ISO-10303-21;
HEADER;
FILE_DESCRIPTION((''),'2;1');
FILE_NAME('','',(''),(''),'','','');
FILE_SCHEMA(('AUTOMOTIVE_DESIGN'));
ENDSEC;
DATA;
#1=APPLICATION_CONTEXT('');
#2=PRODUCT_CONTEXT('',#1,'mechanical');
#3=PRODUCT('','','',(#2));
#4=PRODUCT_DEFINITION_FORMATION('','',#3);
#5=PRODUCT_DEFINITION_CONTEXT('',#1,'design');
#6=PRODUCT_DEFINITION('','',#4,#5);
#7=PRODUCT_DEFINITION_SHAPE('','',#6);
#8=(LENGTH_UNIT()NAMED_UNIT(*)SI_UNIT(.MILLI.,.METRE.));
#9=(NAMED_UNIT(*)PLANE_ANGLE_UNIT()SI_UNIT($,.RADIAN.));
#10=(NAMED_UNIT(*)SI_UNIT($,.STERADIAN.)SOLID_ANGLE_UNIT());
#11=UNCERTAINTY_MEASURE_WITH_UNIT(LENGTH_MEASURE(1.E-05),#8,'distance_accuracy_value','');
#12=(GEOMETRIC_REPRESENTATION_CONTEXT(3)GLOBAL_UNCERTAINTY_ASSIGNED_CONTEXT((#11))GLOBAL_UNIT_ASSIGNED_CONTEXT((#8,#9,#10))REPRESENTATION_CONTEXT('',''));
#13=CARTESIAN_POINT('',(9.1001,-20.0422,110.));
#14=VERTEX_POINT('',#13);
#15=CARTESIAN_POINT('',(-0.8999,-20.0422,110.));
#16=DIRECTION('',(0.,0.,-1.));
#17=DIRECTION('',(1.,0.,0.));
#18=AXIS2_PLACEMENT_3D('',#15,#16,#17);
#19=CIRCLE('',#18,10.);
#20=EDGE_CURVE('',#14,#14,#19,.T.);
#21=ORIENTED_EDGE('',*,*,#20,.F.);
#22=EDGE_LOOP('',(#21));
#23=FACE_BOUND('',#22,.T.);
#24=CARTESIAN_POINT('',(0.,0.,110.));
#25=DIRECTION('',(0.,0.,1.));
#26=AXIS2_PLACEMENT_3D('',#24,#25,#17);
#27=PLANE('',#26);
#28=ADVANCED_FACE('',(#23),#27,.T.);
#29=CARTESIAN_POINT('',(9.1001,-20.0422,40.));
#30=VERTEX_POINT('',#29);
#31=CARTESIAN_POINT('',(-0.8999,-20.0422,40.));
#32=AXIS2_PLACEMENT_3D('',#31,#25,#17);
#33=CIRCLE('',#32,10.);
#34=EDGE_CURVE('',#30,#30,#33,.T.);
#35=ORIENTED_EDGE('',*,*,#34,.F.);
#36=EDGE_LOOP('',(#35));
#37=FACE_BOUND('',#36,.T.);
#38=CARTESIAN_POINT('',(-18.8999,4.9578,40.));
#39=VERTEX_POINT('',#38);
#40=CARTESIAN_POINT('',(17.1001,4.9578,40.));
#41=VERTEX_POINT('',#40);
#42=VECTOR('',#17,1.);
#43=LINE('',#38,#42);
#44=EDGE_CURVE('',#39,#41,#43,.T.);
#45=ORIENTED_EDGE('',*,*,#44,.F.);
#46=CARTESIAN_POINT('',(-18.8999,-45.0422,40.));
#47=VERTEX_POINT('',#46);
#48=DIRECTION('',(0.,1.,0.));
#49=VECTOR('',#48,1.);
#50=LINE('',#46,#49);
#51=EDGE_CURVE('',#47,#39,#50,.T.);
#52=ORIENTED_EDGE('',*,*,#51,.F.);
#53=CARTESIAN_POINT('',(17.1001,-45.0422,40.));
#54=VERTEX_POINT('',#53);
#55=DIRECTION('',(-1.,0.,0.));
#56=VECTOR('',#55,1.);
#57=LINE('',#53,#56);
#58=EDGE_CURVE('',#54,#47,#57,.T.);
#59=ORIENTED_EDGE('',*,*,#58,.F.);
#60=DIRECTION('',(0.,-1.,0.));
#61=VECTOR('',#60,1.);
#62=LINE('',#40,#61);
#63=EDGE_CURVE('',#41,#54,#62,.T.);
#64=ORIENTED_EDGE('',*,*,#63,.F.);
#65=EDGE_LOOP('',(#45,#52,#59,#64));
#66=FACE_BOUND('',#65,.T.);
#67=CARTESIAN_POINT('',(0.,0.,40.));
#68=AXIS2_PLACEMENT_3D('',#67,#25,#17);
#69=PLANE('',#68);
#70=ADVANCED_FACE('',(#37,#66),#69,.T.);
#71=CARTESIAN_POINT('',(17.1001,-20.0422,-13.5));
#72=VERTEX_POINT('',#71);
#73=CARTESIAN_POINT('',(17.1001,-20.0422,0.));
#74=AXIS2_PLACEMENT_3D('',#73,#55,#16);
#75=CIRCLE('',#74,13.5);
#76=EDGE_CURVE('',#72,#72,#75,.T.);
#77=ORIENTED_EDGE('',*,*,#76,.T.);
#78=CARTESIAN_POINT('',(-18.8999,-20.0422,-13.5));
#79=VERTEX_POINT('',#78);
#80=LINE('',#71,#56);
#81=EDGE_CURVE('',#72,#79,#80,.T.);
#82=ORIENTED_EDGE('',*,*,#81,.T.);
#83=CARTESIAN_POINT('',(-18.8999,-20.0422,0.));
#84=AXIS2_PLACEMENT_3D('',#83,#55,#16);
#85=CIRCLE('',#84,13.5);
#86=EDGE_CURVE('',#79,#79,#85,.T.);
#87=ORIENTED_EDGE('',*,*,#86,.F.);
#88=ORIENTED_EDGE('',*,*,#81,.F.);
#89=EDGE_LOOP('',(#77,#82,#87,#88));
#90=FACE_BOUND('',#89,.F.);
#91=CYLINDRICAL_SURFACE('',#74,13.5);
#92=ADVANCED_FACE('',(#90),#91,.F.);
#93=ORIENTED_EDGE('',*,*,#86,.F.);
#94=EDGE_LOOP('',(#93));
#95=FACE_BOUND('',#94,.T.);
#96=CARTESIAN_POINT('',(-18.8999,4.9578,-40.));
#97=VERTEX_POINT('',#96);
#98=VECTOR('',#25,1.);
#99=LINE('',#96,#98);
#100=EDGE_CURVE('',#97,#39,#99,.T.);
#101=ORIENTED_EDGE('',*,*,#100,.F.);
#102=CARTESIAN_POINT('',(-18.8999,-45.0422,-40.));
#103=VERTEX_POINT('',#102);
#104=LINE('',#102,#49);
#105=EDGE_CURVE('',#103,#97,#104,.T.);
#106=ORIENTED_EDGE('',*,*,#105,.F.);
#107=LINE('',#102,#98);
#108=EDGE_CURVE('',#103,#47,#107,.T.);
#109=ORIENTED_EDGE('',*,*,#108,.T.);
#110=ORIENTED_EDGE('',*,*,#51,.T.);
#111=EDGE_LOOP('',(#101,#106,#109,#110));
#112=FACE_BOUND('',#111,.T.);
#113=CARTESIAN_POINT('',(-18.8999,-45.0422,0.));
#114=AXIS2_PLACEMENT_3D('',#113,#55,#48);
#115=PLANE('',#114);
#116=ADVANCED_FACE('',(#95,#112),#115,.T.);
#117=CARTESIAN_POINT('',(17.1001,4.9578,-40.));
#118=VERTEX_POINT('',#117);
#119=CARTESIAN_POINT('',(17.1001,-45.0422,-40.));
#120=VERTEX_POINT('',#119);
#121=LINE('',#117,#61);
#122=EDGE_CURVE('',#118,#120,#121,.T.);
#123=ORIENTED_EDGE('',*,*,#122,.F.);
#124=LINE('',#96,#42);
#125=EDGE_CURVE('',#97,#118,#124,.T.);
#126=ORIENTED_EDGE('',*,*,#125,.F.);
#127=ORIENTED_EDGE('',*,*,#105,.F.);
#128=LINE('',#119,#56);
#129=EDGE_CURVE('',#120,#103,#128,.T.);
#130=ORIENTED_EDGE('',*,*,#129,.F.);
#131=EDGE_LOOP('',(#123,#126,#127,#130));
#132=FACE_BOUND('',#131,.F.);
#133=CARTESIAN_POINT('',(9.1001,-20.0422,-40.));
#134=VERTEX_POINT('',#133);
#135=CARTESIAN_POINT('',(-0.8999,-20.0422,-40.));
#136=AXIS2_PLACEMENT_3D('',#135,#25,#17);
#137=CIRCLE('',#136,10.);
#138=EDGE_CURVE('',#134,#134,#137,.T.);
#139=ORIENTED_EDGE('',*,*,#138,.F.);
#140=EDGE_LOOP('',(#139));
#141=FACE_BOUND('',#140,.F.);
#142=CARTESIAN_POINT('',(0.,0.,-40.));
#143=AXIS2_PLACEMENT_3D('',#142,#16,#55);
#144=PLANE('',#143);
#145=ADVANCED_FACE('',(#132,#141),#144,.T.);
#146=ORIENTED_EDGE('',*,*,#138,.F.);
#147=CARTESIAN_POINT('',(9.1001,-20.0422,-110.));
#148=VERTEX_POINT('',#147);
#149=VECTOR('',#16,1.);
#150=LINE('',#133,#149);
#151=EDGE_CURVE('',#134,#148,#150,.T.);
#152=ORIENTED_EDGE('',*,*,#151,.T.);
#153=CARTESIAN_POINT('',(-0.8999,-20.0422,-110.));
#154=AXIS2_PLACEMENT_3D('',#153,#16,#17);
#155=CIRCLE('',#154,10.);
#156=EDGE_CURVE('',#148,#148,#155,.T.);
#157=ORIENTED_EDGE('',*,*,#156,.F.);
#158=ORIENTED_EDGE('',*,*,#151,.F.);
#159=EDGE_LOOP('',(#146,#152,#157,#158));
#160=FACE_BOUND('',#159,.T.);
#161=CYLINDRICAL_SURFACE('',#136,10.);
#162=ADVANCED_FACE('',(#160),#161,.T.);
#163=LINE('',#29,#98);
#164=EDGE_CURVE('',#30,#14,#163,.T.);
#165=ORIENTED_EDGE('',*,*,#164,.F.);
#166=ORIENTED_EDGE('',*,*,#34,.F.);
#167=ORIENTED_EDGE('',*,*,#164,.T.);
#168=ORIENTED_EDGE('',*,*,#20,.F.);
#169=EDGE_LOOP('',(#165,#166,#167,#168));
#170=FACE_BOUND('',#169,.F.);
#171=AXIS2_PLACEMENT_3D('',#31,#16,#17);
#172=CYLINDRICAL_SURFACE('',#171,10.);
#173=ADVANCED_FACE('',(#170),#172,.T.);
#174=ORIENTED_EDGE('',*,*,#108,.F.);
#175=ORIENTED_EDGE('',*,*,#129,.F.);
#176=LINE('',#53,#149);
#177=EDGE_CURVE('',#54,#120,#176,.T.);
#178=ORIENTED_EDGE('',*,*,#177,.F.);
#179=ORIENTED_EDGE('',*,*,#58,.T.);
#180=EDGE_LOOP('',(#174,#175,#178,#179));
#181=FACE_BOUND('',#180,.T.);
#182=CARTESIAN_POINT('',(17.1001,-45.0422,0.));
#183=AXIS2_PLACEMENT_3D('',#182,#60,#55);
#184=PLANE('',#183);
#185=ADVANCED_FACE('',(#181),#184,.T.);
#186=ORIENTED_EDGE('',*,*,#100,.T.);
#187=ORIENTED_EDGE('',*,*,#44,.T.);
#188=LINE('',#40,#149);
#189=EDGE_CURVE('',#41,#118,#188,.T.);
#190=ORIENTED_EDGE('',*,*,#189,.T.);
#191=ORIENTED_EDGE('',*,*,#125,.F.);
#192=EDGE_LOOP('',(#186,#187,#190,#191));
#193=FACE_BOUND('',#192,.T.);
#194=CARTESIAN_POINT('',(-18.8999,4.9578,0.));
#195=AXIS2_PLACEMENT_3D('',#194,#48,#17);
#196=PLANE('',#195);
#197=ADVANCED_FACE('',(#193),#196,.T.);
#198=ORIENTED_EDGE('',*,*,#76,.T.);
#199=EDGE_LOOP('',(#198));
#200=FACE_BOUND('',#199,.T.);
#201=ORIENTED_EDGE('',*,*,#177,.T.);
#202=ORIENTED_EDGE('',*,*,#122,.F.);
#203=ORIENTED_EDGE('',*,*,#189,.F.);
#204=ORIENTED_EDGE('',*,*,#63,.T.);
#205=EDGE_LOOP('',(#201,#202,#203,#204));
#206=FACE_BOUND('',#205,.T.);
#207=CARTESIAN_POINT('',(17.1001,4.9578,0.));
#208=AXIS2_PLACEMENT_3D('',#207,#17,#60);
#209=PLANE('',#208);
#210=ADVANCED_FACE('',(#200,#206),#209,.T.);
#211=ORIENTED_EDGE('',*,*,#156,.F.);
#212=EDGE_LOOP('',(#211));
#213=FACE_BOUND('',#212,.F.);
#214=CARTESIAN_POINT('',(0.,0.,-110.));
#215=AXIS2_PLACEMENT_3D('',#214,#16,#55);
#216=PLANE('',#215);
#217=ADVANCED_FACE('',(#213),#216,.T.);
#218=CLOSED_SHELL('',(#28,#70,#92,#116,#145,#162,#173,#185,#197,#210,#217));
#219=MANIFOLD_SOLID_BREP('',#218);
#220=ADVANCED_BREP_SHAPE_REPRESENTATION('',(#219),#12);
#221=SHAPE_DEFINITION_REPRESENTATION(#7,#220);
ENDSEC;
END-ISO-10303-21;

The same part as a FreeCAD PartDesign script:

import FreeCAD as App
import Part
import Sketcher
from FreeCAD import Vector
Q = App.Units.Quantity

doc = App.newDocument("Part")
body = doc.addObject("PartDesign::Body", "Body")

# Sketch on XY plane
sketch1 = body.newObject("Sketcher::SketchObject", "Sketch")
sketch1.AttachmentSupport = (doc.getObject("XY_Plane"), [""])
sketch1.MapMode = "FlatFace"
sketch1.addGeometry([
    Part.LineSegment(Vector(17, 5, 0), Vector(-19, 5, 0)),
    Part.LineSegment(Vector(-19, 5, 0), Vector(-19, -45, 0)),
    Part.LineSegment(Vector(-19, -45, 0), Vector(17, -45, 0)),
    Part.LineSegment(Vector(17, -45, 0), Vector(17, 5, 0)),
], False)
sketch1.addConstraint([
    Sketcher.Constraint("Coincident", 0, 2, 1, 1),
    Sketcher.Constraint("Coincident", 1, 2, 2, 1),
    Sketcher.Constraint("Coincident", 2, 2, 3, 1),
    Sketcher.Constraint("Coincident", 3, 2, 0, 1),
    Sketcher.Constraint("Horizontal", 0),
    Sketcher.Constraint("Vertical", 1),
    Sketcher.Constraint("Horizontal", 2),
    Sketcher.Constraint("Vertical", 3),
    Sketcher.Constraint("DistanceX", 0, 2, 0, 1, Q("36 mm")),
    Sketcher.Constraint("DistanceY", 1, 2, 1, 1, Q("50 mm")),
    Sketcher.Constraint("DistanceX", 0, 2, -1, 1, Q("18.9 mm")),
    Sketcher.Constraint("DistanceY", -1, 1, 0, 2, Q("4.9578 mm")),
])
pad1 = body.newObject("PartDesign::Pad", "Pad")
pad1.Profile = sketch1
pad1.Length = 40

# Sketch on XY plane
sketch2 = body.newObject("Sketcher::SketchObject", "Sketch001")
sketch2.AttachmentSupport = (doc.getObject("XY_Plane"), [""])
sketch2.MapMode = "FlatFace"
sketch2.AttachmentOffset = App.Placement(Vector(0, 0, 40), App.Rotation())
sketch2.addGeometry(Part.Circle(Vector(-1, -20, 0), Vector(0, 0, 1), 10), False)
sketch2.addConstraint([
    Sketcher.Constraint("Diameter", 0, Q("20 mm")),
    Sketcher.Constraint("DistanceX", 0, 3, -1, 1, Q("0.9 mm")),
    Sketcher.Constraint("DistanceY", 0, 3, -1, 1, Q("20.0422 mm")),
])
pad2 = body.newObject("PartDesign::Pad", "Pad001")
pad2.Profile = sketch2
pad2.Length = 70
doc.recompute()

mirrored = body.newObject("PartDesign::Mirrored", "Mirrored")
mirrored.TransformMode = "Transform body"
mirrored.MirrorPlane = (doc.getObject("XY_Plane"), [""])
body.Tip = mirrored

# Sketch on YZ plane
sketch3 = body.newObject("Sketcher::SketchObject", "Sketch002")
sketch3.AttachmentSupport = (doc.getObject("YZ_Plane"), [""])
sketch3.MapMode = "FlatFace"
sketch3.AttachmentOffset = App.Placement(Vector(0, 0, 17.1001), App.Rotation())
sketch3.addGeometry(Part.Circle(Vector(-20, 0, 0), Vector(0, 0, 1), 14), False)
sketch3.addConstraint([
    Sketcher.Constraint("PointOnObject", 0, 3, -1),
    Sketcher.Constraint("Diameter", 0, Q("27 mm")),
    Sketcher.Constraint("DistanceX", 0, 3, -1, 1, Q("20.0422 mm")),
])
doc.recompute()
hole = body.newObject("PartDesign::Hole", "Hole")
hole.Profile = sketch3
hole.ThreadType = "None"
hole.Diameter = 27
hole.DepthType = "ThroughAll"

doc.recompute()
